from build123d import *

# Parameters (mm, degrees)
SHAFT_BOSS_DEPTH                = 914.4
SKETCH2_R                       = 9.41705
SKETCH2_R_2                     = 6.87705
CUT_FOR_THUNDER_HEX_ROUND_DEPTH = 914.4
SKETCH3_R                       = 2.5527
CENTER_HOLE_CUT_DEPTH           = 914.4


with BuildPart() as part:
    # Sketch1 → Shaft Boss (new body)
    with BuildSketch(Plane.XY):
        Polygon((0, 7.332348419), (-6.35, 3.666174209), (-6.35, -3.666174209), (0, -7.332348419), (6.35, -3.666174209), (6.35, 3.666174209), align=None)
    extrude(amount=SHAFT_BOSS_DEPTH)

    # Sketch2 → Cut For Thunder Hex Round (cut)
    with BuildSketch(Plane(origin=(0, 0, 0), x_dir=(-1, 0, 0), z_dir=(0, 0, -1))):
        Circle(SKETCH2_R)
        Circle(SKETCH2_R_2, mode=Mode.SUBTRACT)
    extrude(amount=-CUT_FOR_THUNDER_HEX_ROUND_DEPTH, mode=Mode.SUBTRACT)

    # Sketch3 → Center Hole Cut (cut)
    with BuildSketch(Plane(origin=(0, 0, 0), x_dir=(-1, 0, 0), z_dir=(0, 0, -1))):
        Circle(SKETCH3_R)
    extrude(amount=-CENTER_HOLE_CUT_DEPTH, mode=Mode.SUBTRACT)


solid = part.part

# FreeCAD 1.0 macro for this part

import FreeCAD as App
import Part
import Sketcher
Q = App.Units.Quantity

doc = App.newDocument("Part")
params = doc.addObject("Spreadsheet::Sheet", "Params")
for row, (alias, value) in enumerate([
    ("pad1_length", "36 in"),
    ("pocket1_length", "36 in"),
    ("sketch3_diameter", "0.201 in"),
    ("pocket2_length", "36 in"),
], start=1):
    params.set(f"A{row}", alias)
    params.set(f"B{row}", "=" + value)
    params.setAlias(f"B{row}", alias)

body = doc.addObject("PartDesign::Body", "Body")

# Sketch on XY plane
sketch1 = body.newObject("Sketcher::SketchObject", "Sketch")
sketch1.AttachmentSupport = (doc.getObject("XY_Plane"), [""])
sketch1.MapMode = "FlatFace"
sketch1.addGeometry(Part.LineSegment(App.Vector(0, 7, 0), App.Vector(-6, 4, 0)), False)
sketch1.addGeometry(Part.LineSegment(App.Vector(-6, 4, 0), App.Vector(-6, -4, 0)), False)
sketch1.addGeometry(Part.LineSegment(App.Vector(-6, -4, 0), App.Vector(0, -7, 0)), False)
sketch1.addGeometry(Part.LineSegment(App.Vector(0, -7, 0), App.Vector(6, -4, 0)), False)
sketch1.addGeometry(Part.LineSegment(App.Vector(6, -4, 0), App.Vector(6, 4, 0)), False)
sketch1.addGeometry(Part.LineSegment(App.Vector(6, 4, 0), App.Vector(0, 7, 0)), False)
sketch1.addConstraint(Sketcher.Constraint("Coincident", 0, 2, 1, 1))
sketch1.addConstraint(Sketcher.Constraint("Coincident", 1, 2, 2, 1))
sketch1.addConstraint(Sketcher.Constraint("Coincident", 2, 2, 3, 1))
sketch1.addConstraint(Sketcher.Constraint("Coincident", 3, 2, 4, 1))
sketch1.addConstraint(Sketcher.Constraint("Coincident", 4, 2, 5, 1))
sketch1.addConstraint(Sketcher.Constraint("Coincident", 5, 2, 0, 1))
sketch1.addConstraint(Sketcher.Constraint("Vertical", 1))
sketch1.addConstraint(Sketcher.Constraint("Vertical", 4))
sketch1.addConstraint(Sketcher.Constraint("Symmetric", 0, 2, 3, 2, -1, 1))
sketch1.addConstraint(Sketcher.Constraint("Symmetric", 2, 2, 5, 2, -1, 1))
sketch1.addConstraint(Sketcher.Constraint("PointOnObject", 2, 2, -2))
sketch1.addConstraint(Sketcher.Constraint("Parallel", 2, 5))
sketch1.addConstraint(Sketcher.Constraint("Horizontal", 1, 2, 3, 2))
sketch1.addConstraint(Sketcher.Constraint("Angle", 0, Q("-150 deg")))
sketch1.addConstraint(Sketcher.Constraint("DistanceX", 1, 2, 3, 2, Q("0.5 in")))
sketch1.addConstraint(Sketcher.Constraint("DistanceY", 1, 2, 1, 1, 7.332348))
pad1 = body.newObject("PartDesign::Pad", "Pad")
pad1.Profile = sketch1
pad1.setExpression("Length", "Params.pad1_length")

# Sketch on XY plane
sketch2 = body.newObject("Sketcher::SketchObject", "Sketch001")
sketch2.AttachmentSupport = (doc.getObject("XY_Plane"), [""])
sketch2.MapMode = "FlatFace"
sketch2.addGeometry(Part.Circle(App.Vector(0, 0, 0), App.Vector(0, 0, 1), 9), False)
sketch2.addGeometry(Part.Circle(App.Vector(0, 0, 0), App.Vector(0, 0, 1), 7), False)
sketch2.addConstraint(Sketcher.Constraint("Coincident", 0, 3, -1, 1))
sketch2.addConstraint(Sketcher.Constraint("Coincident", 1, 3, -1, 1))
sketch2.addConstraint(Sketcher.Constraint("Diameter", 0, Q("0.7415 in")))
sketch2.addConstraint(Sketcher.Constraint("Diameter", 1, Q("0.5415 in")))
pocket1 = body.newObject("PartDesign::Pocket", "Pocket")
pocket1.Profile = sketch2
pocket1.setExpression("Length", "Params.pocket1_length")
pocket1.Reversed = True

# Sketch on XY plane
sketch3 = body.newObject("Sketcher::SketchObject", "Sketch002")
sketch3.AttachmentSupport = (doc.getObject("XY_Plane"), [""])
sketch3.MapMode = "FlatFace"
sketch3.addGeometry(Part.Circle(App.Vector(0, 0, 0), App.Vector(0, 0, 1), 2.6), False)
sketch3.addConstraint(Sketcher.Constraint("Coincident", 0, 3, -1, 1))
sketch3.addConstraint(Sketcher.Constraint("Diameter", 0, Q("0.201 in")))
sketch3.setExpression("Constraints[1]", "Params.sketch3_diameter")
pocket2 = body.newObject("PartDesign::Pocket", "Pocket001")
pocket2.Profile = sketch3
pocket2.setExpression("Length", "Params.pocket2_length")
pocket2.Reversed = True

doc.recompute()
